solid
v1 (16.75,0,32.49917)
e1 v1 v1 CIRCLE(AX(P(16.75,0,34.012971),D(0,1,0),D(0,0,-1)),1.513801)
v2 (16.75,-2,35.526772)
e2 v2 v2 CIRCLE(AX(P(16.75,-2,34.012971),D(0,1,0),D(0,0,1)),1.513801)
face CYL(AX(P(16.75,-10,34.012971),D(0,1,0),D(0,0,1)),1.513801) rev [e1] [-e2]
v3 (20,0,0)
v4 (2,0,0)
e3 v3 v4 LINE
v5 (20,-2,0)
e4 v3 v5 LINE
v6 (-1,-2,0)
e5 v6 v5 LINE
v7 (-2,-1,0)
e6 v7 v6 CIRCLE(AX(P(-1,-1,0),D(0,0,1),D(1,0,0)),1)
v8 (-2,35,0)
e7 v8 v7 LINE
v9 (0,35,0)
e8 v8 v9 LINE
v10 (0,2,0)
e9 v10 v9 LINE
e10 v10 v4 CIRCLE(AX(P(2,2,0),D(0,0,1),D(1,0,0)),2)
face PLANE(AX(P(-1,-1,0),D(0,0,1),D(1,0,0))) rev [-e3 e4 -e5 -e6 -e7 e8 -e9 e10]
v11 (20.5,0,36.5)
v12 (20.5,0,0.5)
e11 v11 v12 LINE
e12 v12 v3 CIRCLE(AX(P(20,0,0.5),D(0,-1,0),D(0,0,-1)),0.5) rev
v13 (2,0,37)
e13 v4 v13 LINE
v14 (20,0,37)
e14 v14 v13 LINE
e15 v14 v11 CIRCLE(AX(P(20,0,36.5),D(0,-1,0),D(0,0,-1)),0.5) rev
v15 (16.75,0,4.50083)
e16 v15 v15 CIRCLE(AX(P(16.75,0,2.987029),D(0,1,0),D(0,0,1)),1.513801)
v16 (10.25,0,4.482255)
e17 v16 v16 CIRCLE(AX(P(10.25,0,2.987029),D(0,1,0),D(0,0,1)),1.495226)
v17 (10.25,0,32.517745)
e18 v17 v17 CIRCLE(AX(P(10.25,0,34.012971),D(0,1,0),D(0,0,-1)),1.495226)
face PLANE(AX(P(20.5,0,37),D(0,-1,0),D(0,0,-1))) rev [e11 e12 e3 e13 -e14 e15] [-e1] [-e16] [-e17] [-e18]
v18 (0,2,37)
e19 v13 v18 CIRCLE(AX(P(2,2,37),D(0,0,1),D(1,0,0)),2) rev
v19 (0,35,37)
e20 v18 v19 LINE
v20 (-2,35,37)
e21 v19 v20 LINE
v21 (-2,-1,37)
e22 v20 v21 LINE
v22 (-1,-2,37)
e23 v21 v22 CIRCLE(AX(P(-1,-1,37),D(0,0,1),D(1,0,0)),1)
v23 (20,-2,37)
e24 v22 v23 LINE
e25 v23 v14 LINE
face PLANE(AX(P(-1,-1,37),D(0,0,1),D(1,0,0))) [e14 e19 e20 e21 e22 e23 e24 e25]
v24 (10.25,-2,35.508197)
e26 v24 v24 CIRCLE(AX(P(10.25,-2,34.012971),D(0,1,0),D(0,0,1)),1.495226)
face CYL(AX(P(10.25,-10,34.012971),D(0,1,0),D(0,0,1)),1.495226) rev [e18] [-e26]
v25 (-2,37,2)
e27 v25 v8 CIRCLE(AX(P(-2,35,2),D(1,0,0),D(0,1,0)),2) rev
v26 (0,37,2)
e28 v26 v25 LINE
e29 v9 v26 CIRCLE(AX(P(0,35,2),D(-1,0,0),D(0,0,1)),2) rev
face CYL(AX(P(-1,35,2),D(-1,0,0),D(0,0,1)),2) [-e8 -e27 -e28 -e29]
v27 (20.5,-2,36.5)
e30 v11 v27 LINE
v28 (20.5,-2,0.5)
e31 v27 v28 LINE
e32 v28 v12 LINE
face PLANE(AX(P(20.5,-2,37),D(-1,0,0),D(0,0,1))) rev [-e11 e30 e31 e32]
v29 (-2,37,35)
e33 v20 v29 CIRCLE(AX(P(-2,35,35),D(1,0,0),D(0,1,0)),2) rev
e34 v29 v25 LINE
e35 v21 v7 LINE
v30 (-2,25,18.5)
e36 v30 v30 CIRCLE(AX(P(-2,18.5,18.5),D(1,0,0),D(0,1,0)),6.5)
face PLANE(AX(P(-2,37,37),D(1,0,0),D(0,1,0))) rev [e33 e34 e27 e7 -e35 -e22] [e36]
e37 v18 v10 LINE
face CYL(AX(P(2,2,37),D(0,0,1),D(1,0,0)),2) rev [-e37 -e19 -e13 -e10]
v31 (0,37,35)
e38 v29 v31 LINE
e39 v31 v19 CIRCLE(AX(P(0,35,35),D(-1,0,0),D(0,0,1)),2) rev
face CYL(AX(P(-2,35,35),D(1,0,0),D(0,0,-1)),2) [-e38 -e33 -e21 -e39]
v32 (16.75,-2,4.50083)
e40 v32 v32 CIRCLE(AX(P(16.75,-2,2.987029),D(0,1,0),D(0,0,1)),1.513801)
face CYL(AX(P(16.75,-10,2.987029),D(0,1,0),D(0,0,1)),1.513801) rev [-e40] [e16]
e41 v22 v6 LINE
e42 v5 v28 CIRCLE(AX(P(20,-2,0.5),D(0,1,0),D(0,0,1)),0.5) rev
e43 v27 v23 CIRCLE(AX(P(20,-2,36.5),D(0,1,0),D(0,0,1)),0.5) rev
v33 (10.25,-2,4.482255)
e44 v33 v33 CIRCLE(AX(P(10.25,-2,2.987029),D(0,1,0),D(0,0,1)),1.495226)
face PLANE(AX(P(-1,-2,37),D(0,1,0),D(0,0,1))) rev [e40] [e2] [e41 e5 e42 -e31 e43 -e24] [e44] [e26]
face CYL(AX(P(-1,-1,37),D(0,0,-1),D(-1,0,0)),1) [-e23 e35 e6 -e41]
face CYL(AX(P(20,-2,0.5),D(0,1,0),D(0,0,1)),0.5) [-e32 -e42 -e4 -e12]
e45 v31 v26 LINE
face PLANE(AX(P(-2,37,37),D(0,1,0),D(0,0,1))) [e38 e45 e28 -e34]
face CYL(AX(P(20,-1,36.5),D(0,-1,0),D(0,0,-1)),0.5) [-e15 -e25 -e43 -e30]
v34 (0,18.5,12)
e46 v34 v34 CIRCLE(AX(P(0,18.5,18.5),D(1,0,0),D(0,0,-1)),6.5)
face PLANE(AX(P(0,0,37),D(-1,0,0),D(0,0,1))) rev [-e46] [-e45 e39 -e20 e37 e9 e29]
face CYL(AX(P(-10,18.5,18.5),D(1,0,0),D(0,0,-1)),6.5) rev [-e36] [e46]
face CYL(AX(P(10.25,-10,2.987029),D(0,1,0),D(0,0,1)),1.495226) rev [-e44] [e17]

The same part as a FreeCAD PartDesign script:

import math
import FreeCAD as App
import Part
import Sketcher
from FreeCAD import Vector
Q = App.Units.Quantity


def edges_at(feature, points):
    """Names of the edges that pass closest to the given points."""
    edges = feature.Shape.Edges
    near = lambda p: min(range(len(edges)), key=lambda i: edges[i].distToShape(Part.Vertex(*p))[0])
    return sorted({f"Edge{near(p) + 1}" for p in points})


def add_polygon(sketch, points):
    """Adds a closed chain of lines whose ends are joined by coincident constraints."""
    first, n = sketch.GeometryCount, len(points)
    for a, b in zip(points, points[1:] + points[:1]):
        sketch.addGeometry(Part.LineSegment(App.Vector(*a, 0), App.Vector(*b, 0)), False)
    for i in range(n):
        sketch.addConstraint(Sketcher.Constraint("Coincident", first + i, 2, first + (i + 1) % n, 1))

doc = App.newDocument("Part")
body = doc.addObject("PartDesign::Body", "Body")

# Sketch on XY plane
sketch1 = body.newObject("Sketcher::SketchObject", "Sketch")
sketch1.AttachmentSupport = (doc.getObject("XY_Plane"), [""])
sketch1.MapMode = "FlatFace"
sketch1.addGeometry([
    Part.LineSegment(Vector(0, 0, 0), Vector(0, 37, 0)),  # 0
    Part.LineSegment(Vector(0, 37, 0), Vector(-2, 37, 0)),  # 1
    Part.LineSegment(Vector(-2, 37, 0), Vector(-2, -1, 0)),  # 2
    Part.ArcOfCircle(Part.Circle(Vector(-1, -1, 0), Vector(0, 0, 1), 1), math.radians(-180), math.radians(-90)),  # 3
    Part.LineSegment(Vector(-1, -2, 0), Vector(20.5, -2, 0)),  # 4
    Part.LineSegment(Vector(20.5, -2, 0), Vector(20.5, 0, 0)),  # 5
    Part.LineSegment(Vector(20.5, 0, 0), Vector(0, 0, 0)),  # 6
], False)
sketch1.addConstraint([
    Sketcher.Constraint("Coincident", 0, 2, 1, 1),
    Sketcher.Constraint("Coincident", 1, 2, 2, 1),
    Sketcher.Constraint("Tangent", 2, 2, 3, 1),
    Sketcher.Constraint("Tangent", 3, 2, 4, 1),
    Sketcher.Constraint("Coincident", 4, 2, 5, 1),
    Sketcher.Constraint("Coincident", 5, 2, 6, 1),
    Sketcher.Constraint("Coincident", 6, 2, 0, 1),
    Sketcher.Constraint("Vertical", 0),
    Sketcher.Constraint("Horizontal", 1),
    Sketcher.Constraint("Vertical", 2),
    Sketcher.Constraint("Horizontal", 4),
    Sketcher.Constraint("Vertical", 5),
    Sketcher.Constraint("Horizontal", 6),
    Sketcher.Constraint("Coincident", 6, 2, -1, 1),
    Sketcher.Constraint("Equal", 1, 5),
    Sketcher.Constraint("Radius", 3, Q("1 mm")),
    Sketcher.Constraint("DistanceX", 1, 2, 1, 1, Q("2 mm")),
    Sketcher.Constraint("DistanceY", 0, 1, 0, 2, Q("37 mm")),
    Sketcher.Constraint("DistanceX", 4, 1, 4, 2, Q("21.5 mm")),
])
pad1 = body.newObject("PartDesign::Pad", "Pad")
pad1.Profile = sketch1
pad1.Length = 37

# Sketch on YZ plane
sketch2 = body.newObject("Sketcher::SketchObject", "Sketch001")
sketch2.AttachmentSupport = (doc.getObject("YZ_Plane"), [""])
sketch2.MapMode = "FlatFace"
sketch2.addGeometry([
    Part.Circle(Vector(18.5, 18.5, 0), Vector(0, 0, 1), 6.5),
    Part.Circle(Vector(9, 18.5, 0), Vector(0, 0, 1), 1.5),
], False)
sketch2.addConstraint([
    Sketcher.Constraint("Horizontal", 0, 3, 1, 3),
    Sketcher.Constraint("Diameter", 0, Q("13 mm")),
    Sketcher.Constraint("Diameter", 1, Q("3 mm")),
    Sketcher.Constraint("DistanceX", -1, 1, 1, 3, Q("9 mm")),
    Sketcher.Constraint("DistanceX", -1, 1, 0, 3, Q("18.5 mm")),
    Sketcher.Constraint("DistanceY", -1, 1, 0, 3, Q("18.5 mm")),
])
pocket1 = body.newObject("PartDesign::Pocket", "Pocket")
pocket1.Profile = sketch2
pocket1.Length = 10

# Sketch on XZ plane
sketch3 = body.newObject("Sketcher::SketchObject", "Sketch002")
sketch3.AttachmentSupport = (doc.getObject("XZ_Plane"), [""])
sketch3.MapMode = "FlatFace"
sketch3.addGeometry([
    Part.Circle(Vector(16.8, 3, 0), Vector(0, 0, 1), 1.5),  # 0
    Part.Circle(Vector(10.2, 3, 0), Vector(0, 0, 1), 1.5),  # 1
    Part.Circle(Vector(4, 3, 0), Vector(0, 0, 1), 1.5),  # 2
    Part.Circle(Vector(16.8, 34, 0), Vector(0, 0, 1), 1.5),  # 3
    Part.Circle(Vector(10.2, 34, 0), Vector(0, 0, 1), 1.5),  # 4
    Part.Circle(Vector(4, 34, 0), Vector(0, 0, 1), 1.5),  # 5
], False)
sketch3.addConstraint([
    Sketcher.Constraint("Equal", 1, 2),
    Sketcher.Constraint("Equal", 0, 3),
    Sketcher.Constraint("Equal", 2, 4),
    Sketcher.Constraint("Equal", 4, 5),
    Sketcher.Constraint("Horizontal", 0, 3, 1, 3),
    Sketcher.Constraint("Horizontal", 1, 3, 2, 3),
    Sketcher.Constraint("Horizontal", 3, 3, 4, 3),
    Sketcher.Constraint("Horizontal", 4, 3, 5, 3),
    Sketcher.Constraint("Vertical", 0, 3, 3, 3),
    Sketcher.Constraint("Vertical", 1, 3, 4, 3),
    Sketcher.Constraint("Vertical", 2, 3, 5, 3),
    Sketcher.Constraint("DistanceX", -1, 1, 2, 3, Q("4 mm")),
    Sketcher.Constraint("DistanceX", 1, 3, 0, 3, Q("6.5 mm")),
    Sketcher.Constraint("DistanceX", -1, 1, 0, 3, Q("16.75 mm")),
    Sketcher.Constraint("Diameter", 0, Q("3.027602 mm")),
    Sketcher.Constraint("Diameter", 1, Q("2.990452 mm")),
    Sketcher.Constraint("DistanceY", -1, 1, 0, 3, Q("2.987029 mm")),
    Sketcher.Constraint("DistanceY", -1, 1, 3, 3, Q("34.012971 mm")),
])
pocket2 = body.newObject("PartDesign::Pocket", "Pocket001")
pocket2.Profile = sketch3
pocket2.Length = 10
pocket2.Reversed = True
doc.recompute()

fillet = body.newObject("PartDesign::Fillet", "Fillet")
fillet.Base = (pocket2, edges_at(pocket2, [(-1, 37, 37), (-1, 37, 0)]))
fillet.Radius = 2
doc.recompute()

fillet2 = body.newObject("PartDesign::Fillet", "Fillet001")
fillet2.Base = (fillet, edges_at(fillet, [(20.5, -1, 37), (20.5, -1, 0)]))
fillet2.Radius = 0.5

# Sketch on XZ plane
sketch4 = body.newObject("Sketcher::SketchObject", "Sketch003")
sketch4.AttachmentSupport = (doc.getObject("XZ_Plane"), [""])
sketch4.MapMode = "FlatFace"
add_polygon(sketch4, [(0, 0), (0, 37), (7, 37), (7, 0)])  # lines 0-3
sketch4.addConstraint([
    Sketcher.Constraint("Vertical", 0),
    Sketcher.Constraint("Horizontal", 1),
    Sketcher.Constraint("Vertical", 2),
    Sketcher.Constraint("Horizontal", 3),
    Sketcher.Constraint("Coincident", 3, 2, -1, 1),
    Sketcher.Constraint("DistanceY", 0, 1, 0, 2, Q("37 mm")),
    Sketcher.Constraint("DistanceX", 1, 1, 1, 2, Q("7.144887 mm")),
])
pad2 = body.newObject("PartDesign::Pad", "Pad001")
pad2.Profile = sketch4
pad2.Length = 2

# Sketch on YZ plane
sketch5 = body.newObject("Sketcher::SketchObject", "Sketch004")
sketch5.AttachmentSupport = (doc.getObject("YZ_Plane"), [""])
sketch5.MapMode = "FlatFace"
sketch5.addGeometry(Part.Circle(Vector(9, 18.5, 0), Vector(0, 0, 1), 2.3), False)
sketch5.addConstraint([
    Sketcher.Constraint("DistanceX", -1, 1, 0, 3, Q("9 mm")),
    Sketcher.Constraint("DistanceY", -1, 1, 0, 3, Q("18.5 mm")),
    Sketcher.Constraint("Diameter", 0, Q("4.685379 mm")),
])
pad3 = body.newObject("PartDesign::Pad", "Pad002")
pad3.Profile = sketch5
pad3.Length = 2
pad3.Reversed = True
doc.recompute()

fillet3 = body.newObject("PartDesign::Fillet", "Fillet002")
fillet3.Base = (pad3, edges_at(pad3, [(0, 0, 18.5)]))
fillet3.Radius = 2

doc.recompute()
